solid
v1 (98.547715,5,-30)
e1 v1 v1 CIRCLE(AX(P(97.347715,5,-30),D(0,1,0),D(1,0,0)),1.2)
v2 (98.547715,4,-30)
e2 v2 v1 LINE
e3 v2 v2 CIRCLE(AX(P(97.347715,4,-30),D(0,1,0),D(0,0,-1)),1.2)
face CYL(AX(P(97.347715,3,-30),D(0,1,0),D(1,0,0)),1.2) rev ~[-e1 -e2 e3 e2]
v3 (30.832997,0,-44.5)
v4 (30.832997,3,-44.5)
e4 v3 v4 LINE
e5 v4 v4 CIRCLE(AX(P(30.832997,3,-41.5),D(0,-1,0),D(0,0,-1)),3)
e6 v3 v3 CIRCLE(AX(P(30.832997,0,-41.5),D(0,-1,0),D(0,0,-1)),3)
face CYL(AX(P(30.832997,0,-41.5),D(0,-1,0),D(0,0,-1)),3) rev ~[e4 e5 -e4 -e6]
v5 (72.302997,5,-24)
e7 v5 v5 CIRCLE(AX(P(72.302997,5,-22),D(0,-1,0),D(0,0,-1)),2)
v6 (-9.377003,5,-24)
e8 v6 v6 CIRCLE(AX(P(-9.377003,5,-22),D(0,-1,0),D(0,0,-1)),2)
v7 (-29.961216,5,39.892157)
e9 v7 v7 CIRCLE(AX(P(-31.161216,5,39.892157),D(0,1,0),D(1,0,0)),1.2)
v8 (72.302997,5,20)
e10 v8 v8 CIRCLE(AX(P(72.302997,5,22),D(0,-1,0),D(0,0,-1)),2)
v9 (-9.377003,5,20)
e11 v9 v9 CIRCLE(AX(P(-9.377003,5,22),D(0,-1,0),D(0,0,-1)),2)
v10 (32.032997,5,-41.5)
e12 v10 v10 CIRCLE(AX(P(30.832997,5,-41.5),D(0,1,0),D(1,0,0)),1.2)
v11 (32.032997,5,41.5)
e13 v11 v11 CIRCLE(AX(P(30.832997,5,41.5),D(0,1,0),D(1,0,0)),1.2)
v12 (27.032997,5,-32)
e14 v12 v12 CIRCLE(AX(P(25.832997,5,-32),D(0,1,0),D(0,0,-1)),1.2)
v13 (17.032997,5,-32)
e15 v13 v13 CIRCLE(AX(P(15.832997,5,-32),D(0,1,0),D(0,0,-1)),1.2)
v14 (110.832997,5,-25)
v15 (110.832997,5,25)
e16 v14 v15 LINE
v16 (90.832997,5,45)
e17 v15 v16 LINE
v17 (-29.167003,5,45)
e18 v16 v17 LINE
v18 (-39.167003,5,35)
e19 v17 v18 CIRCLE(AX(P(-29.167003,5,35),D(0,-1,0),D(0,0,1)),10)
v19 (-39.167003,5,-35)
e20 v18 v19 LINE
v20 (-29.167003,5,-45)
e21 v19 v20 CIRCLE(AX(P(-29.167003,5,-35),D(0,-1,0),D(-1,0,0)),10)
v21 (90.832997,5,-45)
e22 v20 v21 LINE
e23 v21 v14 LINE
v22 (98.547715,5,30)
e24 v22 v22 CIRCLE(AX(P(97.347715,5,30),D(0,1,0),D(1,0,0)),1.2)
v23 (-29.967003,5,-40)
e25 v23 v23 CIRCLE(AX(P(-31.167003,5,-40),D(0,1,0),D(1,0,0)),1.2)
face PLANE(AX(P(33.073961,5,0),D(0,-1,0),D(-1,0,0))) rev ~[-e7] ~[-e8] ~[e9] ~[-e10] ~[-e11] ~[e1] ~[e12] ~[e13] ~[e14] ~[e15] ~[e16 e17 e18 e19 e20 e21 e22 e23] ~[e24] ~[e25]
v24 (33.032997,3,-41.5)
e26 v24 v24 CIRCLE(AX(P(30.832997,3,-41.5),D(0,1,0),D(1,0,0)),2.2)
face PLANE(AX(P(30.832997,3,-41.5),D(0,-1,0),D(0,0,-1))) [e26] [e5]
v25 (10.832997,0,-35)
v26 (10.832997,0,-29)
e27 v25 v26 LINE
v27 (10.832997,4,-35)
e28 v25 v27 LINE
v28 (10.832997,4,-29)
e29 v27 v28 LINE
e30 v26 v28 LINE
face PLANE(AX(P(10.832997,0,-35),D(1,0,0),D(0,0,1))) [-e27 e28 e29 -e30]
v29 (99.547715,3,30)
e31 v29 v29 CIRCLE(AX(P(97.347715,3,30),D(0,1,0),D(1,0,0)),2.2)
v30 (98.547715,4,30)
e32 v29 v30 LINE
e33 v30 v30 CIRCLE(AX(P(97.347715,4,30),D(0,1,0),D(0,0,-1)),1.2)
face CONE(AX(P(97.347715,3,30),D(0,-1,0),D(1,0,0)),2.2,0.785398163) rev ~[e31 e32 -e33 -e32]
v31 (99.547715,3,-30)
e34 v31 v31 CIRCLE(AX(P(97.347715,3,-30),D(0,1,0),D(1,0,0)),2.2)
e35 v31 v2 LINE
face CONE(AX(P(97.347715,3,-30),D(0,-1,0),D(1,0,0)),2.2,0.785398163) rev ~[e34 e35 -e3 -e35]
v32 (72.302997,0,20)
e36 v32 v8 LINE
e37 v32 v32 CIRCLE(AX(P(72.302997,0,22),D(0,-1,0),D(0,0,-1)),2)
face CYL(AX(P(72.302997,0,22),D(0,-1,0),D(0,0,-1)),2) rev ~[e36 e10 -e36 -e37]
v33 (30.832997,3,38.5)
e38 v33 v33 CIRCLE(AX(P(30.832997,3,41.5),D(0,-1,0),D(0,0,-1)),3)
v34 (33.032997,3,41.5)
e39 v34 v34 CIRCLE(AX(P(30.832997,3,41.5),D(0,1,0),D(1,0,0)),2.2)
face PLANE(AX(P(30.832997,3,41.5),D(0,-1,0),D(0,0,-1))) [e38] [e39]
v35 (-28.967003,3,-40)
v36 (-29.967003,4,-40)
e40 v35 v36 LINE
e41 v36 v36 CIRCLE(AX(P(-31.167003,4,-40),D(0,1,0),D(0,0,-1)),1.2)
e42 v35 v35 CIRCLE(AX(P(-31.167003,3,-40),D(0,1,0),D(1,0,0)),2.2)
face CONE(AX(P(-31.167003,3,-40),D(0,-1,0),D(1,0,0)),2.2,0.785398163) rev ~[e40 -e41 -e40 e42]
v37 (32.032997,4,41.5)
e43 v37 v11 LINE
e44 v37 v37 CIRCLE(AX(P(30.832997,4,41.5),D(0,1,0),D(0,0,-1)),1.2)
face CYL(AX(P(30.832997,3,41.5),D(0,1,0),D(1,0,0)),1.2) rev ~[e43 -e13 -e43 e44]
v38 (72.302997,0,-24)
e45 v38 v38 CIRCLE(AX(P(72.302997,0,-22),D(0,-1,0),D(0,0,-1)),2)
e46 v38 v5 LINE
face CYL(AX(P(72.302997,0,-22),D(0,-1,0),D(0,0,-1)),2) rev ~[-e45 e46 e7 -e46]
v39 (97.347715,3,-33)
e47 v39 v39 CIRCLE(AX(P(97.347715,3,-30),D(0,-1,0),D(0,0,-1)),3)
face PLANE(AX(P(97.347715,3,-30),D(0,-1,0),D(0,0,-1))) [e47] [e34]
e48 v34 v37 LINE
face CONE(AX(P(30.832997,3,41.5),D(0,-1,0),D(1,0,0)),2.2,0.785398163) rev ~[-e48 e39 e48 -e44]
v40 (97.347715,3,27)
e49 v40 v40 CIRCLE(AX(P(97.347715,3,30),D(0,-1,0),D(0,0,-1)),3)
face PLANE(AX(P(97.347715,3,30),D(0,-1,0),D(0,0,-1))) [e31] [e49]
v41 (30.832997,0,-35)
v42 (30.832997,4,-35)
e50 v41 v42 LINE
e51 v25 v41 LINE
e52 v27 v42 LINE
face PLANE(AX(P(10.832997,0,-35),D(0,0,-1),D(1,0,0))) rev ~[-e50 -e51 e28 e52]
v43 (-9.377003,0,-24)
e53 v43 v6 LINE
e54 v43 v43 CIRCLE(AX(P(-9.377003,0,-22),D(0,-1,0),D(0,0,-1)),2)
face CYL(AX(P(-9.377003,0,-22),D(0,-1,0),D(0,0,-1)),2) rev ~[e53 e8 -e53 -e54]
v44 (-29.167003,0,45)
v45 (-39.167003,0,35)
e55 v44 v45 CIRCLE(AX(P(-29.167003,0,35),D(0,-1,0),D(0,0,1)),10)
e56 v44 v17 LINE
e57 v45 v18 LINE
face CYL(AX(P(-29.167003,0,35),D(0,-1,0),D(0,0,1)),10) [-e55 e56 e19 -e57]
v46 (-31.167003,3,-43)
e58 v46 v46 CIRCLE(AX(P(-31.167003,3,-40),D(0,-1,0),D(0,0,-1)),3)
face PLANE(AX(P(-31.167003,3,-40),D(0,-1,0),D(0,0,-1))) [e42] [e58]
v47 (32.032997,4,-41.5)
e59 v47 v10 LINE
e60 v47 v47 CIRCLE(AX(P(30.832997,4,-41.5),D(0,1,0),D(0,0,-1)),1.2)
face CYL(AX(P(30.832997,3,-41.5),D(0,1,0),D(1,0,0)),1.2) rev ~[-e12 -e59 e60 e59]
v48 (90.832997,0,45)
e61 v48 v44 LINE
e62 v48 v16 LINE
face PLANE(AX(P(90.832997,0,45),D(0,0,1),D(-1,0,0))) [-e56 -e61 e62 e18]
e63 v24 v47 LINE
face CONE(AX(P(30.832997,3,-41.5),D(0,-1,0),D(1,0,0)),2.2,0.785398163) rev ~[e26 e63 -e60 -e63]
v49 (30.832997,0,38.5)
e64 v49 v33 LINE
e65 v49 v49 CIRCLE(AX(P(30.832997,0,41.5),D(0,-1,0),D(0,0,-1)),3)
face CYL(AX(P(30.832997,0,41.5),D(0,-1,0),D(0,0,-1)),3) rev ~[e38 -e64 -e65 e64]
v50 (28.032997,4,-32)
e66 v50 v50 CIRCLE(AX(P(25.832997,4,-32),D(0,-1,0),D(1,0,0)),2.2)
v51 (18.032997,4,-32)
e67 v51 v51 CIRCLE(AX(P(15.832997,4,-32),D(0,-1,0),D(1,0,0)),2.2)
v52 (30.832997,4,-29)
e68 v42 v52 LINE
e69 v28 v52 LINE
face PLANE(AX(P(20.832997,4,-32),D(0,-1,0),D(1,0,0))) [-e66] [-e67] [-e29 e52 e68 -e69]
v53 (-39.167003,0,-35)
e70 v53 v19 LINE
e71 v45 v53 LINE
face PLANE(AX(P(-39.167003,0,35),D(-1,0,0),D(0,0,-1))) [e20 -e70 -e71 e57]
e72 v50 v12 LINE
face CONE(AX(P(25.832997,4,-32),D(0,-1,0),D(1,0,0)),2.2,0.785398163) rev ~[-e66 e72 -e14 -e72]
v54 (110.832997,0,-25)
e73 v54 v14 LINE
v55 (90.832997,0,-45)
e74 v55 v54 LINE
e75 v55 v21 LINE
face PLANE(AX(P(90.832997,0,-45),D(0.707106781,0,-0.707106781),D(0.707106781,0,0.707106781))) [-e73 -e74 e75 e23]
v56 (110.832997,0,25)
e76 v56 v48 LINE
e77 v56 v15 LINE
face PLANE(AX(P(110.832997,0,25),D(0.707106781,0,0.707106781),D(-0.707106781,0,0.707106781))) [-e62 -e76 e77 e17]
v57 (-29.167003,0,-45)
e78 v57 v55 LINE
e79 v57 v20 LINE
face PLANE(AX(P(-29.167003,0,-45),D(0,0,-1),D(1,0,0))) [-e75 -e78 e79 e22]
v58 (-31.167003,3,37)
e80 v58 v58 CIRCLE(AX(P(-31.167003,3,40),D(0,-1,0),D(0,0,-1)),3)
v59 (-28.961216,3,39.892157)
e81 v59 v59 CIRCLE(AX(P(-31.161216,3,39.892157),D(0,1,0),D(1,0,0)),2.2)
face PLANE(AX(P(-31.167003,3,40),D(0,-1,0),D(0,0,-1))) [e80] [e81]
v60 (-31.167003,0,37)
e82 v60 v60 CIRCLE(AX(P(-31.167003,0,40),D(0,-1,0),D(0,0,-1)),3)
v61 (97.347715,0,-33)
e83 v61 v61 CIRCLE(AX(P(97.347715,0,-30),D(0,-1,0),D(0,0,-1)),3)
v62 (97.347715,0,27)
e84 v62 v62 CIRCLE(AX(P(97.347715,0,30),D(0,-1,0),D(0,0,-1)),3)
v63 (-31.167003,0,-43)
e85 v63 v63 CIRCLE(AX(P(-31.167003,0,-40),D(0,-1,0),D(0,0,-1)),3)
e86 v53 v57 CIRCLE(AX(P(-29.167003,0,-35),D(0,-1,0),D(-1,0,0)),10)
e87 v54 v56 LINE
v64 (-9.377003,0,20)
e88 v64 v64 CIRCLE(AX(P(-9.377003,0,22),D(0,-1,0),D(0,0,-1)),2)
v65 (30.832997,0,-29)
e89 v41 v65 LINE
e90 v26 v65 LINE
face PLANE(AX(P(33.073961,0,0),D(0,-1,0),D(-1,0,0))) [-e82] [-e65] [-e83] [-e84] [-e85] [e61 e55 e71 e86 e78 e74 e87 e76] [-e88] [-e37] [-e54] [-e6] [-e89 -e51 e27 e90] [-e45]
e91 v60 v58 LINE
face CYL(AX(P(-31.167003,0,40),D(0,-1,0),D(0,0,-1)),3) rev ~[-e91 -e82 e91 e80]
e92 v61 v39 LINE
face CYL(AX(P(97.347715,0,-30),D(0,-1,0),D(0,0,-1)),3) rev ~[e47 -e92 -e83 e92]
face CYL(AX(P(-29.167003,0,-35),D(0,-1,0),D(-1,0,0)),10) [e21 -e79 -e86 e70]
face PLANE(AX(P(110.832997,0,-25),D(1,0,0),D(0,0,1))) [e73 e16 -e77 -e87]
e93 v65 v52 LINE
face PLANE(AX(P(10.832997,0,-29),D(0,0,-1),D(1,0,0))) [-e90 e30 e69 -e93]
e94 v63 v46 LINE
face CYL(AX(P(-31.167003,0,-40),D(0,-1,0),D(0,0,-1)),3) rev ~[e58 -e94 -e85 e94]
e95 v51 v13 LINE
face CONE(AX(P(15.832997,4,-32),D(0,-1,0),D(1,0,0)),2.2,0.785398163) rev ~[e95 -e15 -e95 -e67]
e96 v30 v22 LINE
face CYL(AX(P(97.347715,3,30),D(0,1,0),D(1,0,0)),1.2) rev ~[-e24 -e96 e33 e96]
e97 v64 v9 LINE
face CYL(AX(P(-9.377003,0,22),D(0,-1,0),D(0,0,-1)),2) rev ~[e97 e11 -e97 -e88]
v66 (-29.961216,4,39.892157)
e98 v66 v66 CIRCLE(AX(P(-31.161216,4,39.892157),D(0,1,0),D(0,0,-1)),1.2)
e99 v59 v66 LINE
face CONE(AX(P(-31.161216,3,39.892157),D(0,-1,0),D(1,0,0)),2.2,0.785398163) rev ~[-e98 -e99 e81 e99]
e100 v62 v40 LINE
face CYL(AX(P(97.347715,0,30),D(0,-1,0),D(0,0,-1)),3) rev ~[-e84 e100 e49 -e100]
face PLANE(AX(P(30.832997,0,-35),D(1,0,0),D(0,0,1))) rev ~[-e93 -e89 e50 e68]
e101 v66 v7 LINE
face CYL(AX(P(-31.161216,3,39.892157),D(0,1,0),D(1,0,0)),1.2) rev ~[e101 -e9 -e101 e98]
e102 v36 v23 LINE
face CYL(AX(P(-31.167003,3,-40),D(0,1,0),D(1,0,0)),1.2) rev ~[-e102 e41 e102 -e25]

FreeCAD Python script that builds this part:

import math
import FreeCAD as App
import Part
import Sketcher
from FreeCAD import Vector
Q = App.Units.Quantity


def add_polygon(sketch, points):
    """Adds a closed chain of lines whose ends are joined by coincident constraints."""
    first, n = sketch.GeometryCount, len(points)
    for a, b in zip(points, points[1:] + points[:1]):
        sketch.addGeometry(Part.LineSegment(App.Vector(*a, 0), App.Vector(*b, 0)), False)
    for i in range(n):
        sketch.addConstraint(Sketcher.Constraint("Coincident", first + i, 2, first + (i + 1) % n, 1))

doc = App.newDocument("Part")
body = doc.addObject("PartDesign::Body", "Body")

sketch1 = body.newObject("Sketcher::SketchObject", "Sketch")
sketch1.AttachmentSupport = (doc.getObject("XZ_Plane"), [""])
sketch1.MapMode = "FlatFace"
sketch1.addGeometry([
    Part.LineSegment(Vector(90.832997, -45, 0), Vector(-29.167003, -45, 0)),
    Part.ArcOfCircle(Part.Circle(Vector(-29.167003, -35, 0), Vector(0, 0, 1), 10), math.radians(180), math.radians(270)),
    Part.LineSegment(Vector(-39.167003, -35, 0), Vector(-39.167003, 35, 0)),
    Part.ArcOfCircle(Part.Circle(Vector(-29.167003, 35, 0), Vector(0, 0, 1), 10), math.radians(90), math.radians(180)),
    Part.LineSegment(Vector(-29.167003, 45, 0), Vector(90.832997, 45, 0)),
    Part.LineSegment(Vector(90.832997, 45, 0), Vector(110.832997, 25, 0)),
    Part.LineSegment(Vector(110.832997, 25, 0), Vector(110.832997, -25, 0)),
    Part.LineSegment(Vector(110.832997, -25, 0), Vector(90.832997, -45, 0)),
], False)
sketch1.addConstraint([
    Sketcher.Constraint("Tangent", 0, 2, 1, 2),
    Sketcher.Constraint("Tangent", 1, 1, 2, 1),
    Sketcher.Constraint("Tangent", 2, 2, 3, 2),
    Sketcher.Constraint("Tangent", 3, 1, 4, 1),
    Sketcher.Constraint("Coincident", 4, 2, 5, 1),
    Sketcher.Constraint("Coincident", 5, 2, 6, 1),
    Sketcher.Constraint("Coincident", 6, 2, 7, 1),
    Sketcher.Constraint("Coincident", 7, 2, 0, 1),
    Sketcher.Constraint("Horizontal", 0),
    Sketcher.Constraint("Vertical", 2),
    Sketcher.Constraint("Horizontal", 4),
    Sketcher.Constraint("Vertical", 6),
    Sketcher.Constraint("Equal", 1, 3),
    Sketcher.Constraint("Symmetric", 4, 2, 7, 2, -1),
    Sketcher.Constraint("Perpendicular", 5, 7),
    Sketcher.Constraint("Equal", 5, 7),
    Sketcher.Constraint("Radius", 1, Q("10 mm")),
    Sketcher.Constraint("DistanceX", 0, 2, 0, 1, Q("120 mm")),
    Sketcher.Constraint("DistanceY", 2, 1, 2, 2, Q("70 mm")),
    Sketcher.Constraint("DistanceY", 6, 2, 6, 1, Q("50 mm")),
    Sketcher.Constraint("DistanceX", 1, 3, -1, 1, Q("29.167003 mm")),
])
pad1 = body.newObject("PartDesign::Pad", "Pad")
pad1.Profile = sketch1
pad1.Length = 5
pad1.Reversed = True

sketch2 = body.newObject("Sketcher::SketchObject", "Sketch001")
sketch2.AttachmentSupport = (doc.getObject("XZ_Plane"), [""])
sketch2.MapMode = "FlatFace"
add_polygon(sketch2, [(10.832997, -29), (10.832997, -35), (30.832997, -35), (30.832997, -29)])
sketch2.addConstraint([
    Sketcher.Constraint("Vertical", 0),
    Sketcher.Constraint("Horizontal", 1),
    Sketcher.Constraint("Vertical", 2),
    Sketcher.Constraint("Horizontal", 3),
    Sketcher.Constraint("DistanceX", 1, 1, 1, 2, Q("20 mm")),
    Sketcher.Constraint("DistanceY", 0, 2, 0, 1, Q("6 mm")),
    Sketcher.Constraint("DistanceY", 0, 2, -1, 1, Q("35 mm")),
    Sketcher.Constraint("DistanceX", -1, 1, 0, 2, Q("10.832997 mm")),
])
pocket1 = body.newObject("PartDesign::Pocket", "Pocket")
pocket1.Profile = sketch2
pocket1.Length = 4

sketch3 = body.newObject("Sketcher::SketchObject", "Sketch002")
sketch3.AttachmentSupport = (doc.getObject("XZ_Plane"), [""])
sketch3.MapMode = "FlatFace"
sketch3.AttachmentOffset = App.Placement(Vector(0, 0, -4), App.Rotation())
sketch3.addGeometry([
    Part.Circle(Vector(15.832997, -32, 0), Vector(0, 0, 1), 1.2),
    Part.Circle(Vector(25.832997, -32, 0), Vector(0, 0, 1), 1.2),
], False)
sketch3.addConstraint([
    Sketcher.Constraint("Equal", 0, 1),
    Sketcher.Constraint("Horizontal", 0, 3, 1, 3),
    Sketcher.Constraint("Diameter", 0, Q("2.4 mm")),
    Sketcher.Constraint("DistanceY", 0, 3, -1, 1, Q("32 mm")),
    Sketcher.Constraint("DistanceX", 0, 3, 1, 3, Q("10 mm")),
    Sketcher.Constraint("DistanceX", -1, 1, 0, 3, Q("15.832997 mm")),
])
doc.recompute()
hole = body.newObject("PartDesign::Hole", "Hole")
hole.Profile = sketch3
hole.ThreadType = "None"
hole.Diameter = 2.4
hole.DepthType = "Dimension"
hole.Depth = 4
hole.DrillPoint = "Flat"
hole.HoleCutType = "Countersink"
hole.HoleCutDiameter = 4.4
hole.HoleCutCountersinkAngle = 90

sketch4 = body.newObject("Sketcher::SketchObject", "Sketch003")
sketch4.AttachmentSupport = (doc.getObject("XZ_Plane"), [""])
sketch4.MapMode = "FlatFace"
sketch4.addGeometry([
    Part.Circle(Vector(-9.377003, 22, 0), Vector(0, 0, 1), 2),
    Part.Circle(Vector(72.302997, 22, 0), Vector(0, 0, 1), 2),
    Part.Circle(Vector(72.302997, -22, 0), Vector(0, 0, 1), 2),
    Part.Circle(Vector(-9.377003, -22, 0), Vector(0, 0, 1), 2),
], False)
sketch4.addConstraint([
    Sketcher.Constraint("Equal", 0, 1),
    Sketcher.Constraint("Equal", 1, 2),
    Sketcher.Constraint("Equal", 2, 3),
    Sketcher.Constraint("Symmetric", 1, 3, 2, 3, -1),
    Sketcher.Constraint("Symmetric", 0, 3, 3, 3, -1),
    Sketcher.Constraint("Horizontal", 0, 3, 1, 3),
    Sketcher.Constraint("Diameter", 0, Q("4 mm")),
    Sketcher.Constraint("DistanceY", -1, 1, 0, 3, Q("22 mm")),
    Sketcher.Constraint("DistanceX", 0, 3, 1, 3, Q("81.68 mm")),
    Sketcher.Constraint("DistanceX", 0, 3, -1, 1, Q("9.377003 mm")),
])
pocket2 = body.newObject("PartDesign::Pocket", "Pocket001")
pocket2.Profile = sketch4
pocket2.Length = 38

sketch5 = body.newObject("Sketcher::SketchObject", "Sketch004")
sketch5.AttachmentSupport = (doc.getObject("XZ_Plane"), [""])
sketch5.MapMode = "FlatFace"
sketch5.addGeometry([
    Part.Circle(Vector(-31.167003, 40, 0), Vector(0, 0, 1), 3),
    Part.Circle(Vector(30.832997, 41.5, 0), Vector(0, 0, 1), 3),
    Part.Circle(Vector(97.347715, 30, 0), Vector(0, 0, 1), 3),
    Part.Circle(Vector(97.347715, -30, 0), Vector(0, 0, 1), 3),
    Part.Circle(Vector(30.832997, -41.5, 0), Vector(0, 0, 1), 3),
    Part.Circle(Vector(-31.167003, -40, 0), Vector(0, 0, 1), 3),
], False)
sketch5.addConstraint([
    Sketcher.Constraint("Equal", 0, 1),
    Sketcher.Constraint("Equal", 1, 2),
    Sketcher.Constraint("Equal", 2, 3),
    Sketcher.Constraint("Equal", 3, 4),
    Sketcher.Constraint("Equal", 4, 5),
    Sketcher.Constraint("Symmetric", 2, 3, 3, 3, -1),
    Sketcher.Constraint("Symmetric", 1, 3, 4, 3, -1),
    Sketcher.Constraint("Symmetric", 0, 3, 5, 3, -1),
    Sketcher.Constraint("Diameter", 0, Q("6 mm")),
    Sketcher.Constraint("DistanceY", -1, 1, 0, 3, Q("40 mm")),
    Sketcher.Constraint("DistanceY", -1, 1, 2, 3, Q("30 mm")),
    Sketcher.Constraint("DistanceX", 0, 3, 1, 3, Q("62 mm")),
    Sketcher.Constraint("DistanceY", 4, 3, 1, 3, Q("83 mm")),
    Sketcher.Constraint("DistanceX", 1, 3, 2, 3, Q("66.514719 mm")),
    Sketcher.Constraint("DistanceX", 0, 3, -1, 1, Q("31.167003 mm")),
])
pocket3 = body.newObject("PartDesign::Pocket", "Pocket002")
pocket3.Profile = sketch5
pocket3.Length = 3

sketch6 = body.newObject("Sketcher::SketchObject", "Sketch005")
sketch6.AttachmentSupport = (doc.getObject("XZ_Plane"), [""])
sketch6.MapMode = "FlatFace"
sketch6.AttachmentOffset = App.Placement(Vector(0, 0, -3), App.Rotation())
sketch6.addGeometry([
    Part.Circle(Vector(-31.161216, 39.892157, 0), Vector(0, 0, 1), 1.2),
    Part.Circle(Vector(30.832997, 41.5, 0), Vector(0, 0, 1), 1.2),
    Part.Circle(Vector(97.347715, 30, 0), Vector(0, 0, 1), 1.2),
    Part.Circle(Vector(97.347715, -30, 0), Vector(0, 0, 1), 1.2),
    Part.Circle(Vector(30.832997, -41.5, 0), Vector(0, 0, 1), 1.2),
    Part.Circle(Vector(-31.167003, -40, 0), Vector(0, 0, 1), 1.2),
], False)
sketch6.addConstraint([
    Sketcher.Constraint("Equal", 0, 1),
    Sketcher.Constraint("Equal", 1, 2),
    Sketcher.Constraint("Equal", 2, 3),
    Sketcher.Constraint("Equal", 3, 4),
    Sketcher.Constraint("Equal", 4, 5),
    Sketcher.Constraint("Symmetric", 2, 3, 3, 3, -1),
    Sketcher.Constraint("Symmetric", 1, 3, 4, 3, -1),
    Sketcher.Constraint("Diameter", 0, Q("2.4 mm")),
    Sketcher.Constraint("DistanceY", -1, 1, 2, 3, Q("30 mm")),
    Sketcher.Constraint("DistanceY", 5, 3, -1, 1, Q("40 mm")),
    Sketcher.Constraint("DistanceY", 4, 3, 1, 3, Q("83 mm")),
    Sketcher.Constraint("DistanceX", 5, 3, 4, 3, Q("62 mm")),
    Sketcher.Constraint("DistanceX", 1, 3, 2, 3, Q("66.514719 mm")),
    Sketcher.Constraint("DistanceX", 0, 3, 2, 3, Q("128.508932 mm")),
    Sketcher.Constraint("DistanceX", 0, 3, -1, 1, Q("31.161216 mm")),
    Sketcher.Constraint("DistanceY", -1, 1, 0, 3, Q("39.892157 mm")),
])
doc.recompute()
hole2 = body.newObject("PartDesign::Hole", "Hole001")
hole2.Profile = sketch6
hole2.ThreadType = "None"
hole2.Diameter = 2.4
hole2.DepthType = "Dimension"
hole2.Depth = 4
hole2.DrillPoint = "Flat"
hole2.HoleCutType = "Countersink"
hole2.HoleCutDiameter = 4.4
hole2.HoleCutCountersinkAngle = 90

doc.recompute()
